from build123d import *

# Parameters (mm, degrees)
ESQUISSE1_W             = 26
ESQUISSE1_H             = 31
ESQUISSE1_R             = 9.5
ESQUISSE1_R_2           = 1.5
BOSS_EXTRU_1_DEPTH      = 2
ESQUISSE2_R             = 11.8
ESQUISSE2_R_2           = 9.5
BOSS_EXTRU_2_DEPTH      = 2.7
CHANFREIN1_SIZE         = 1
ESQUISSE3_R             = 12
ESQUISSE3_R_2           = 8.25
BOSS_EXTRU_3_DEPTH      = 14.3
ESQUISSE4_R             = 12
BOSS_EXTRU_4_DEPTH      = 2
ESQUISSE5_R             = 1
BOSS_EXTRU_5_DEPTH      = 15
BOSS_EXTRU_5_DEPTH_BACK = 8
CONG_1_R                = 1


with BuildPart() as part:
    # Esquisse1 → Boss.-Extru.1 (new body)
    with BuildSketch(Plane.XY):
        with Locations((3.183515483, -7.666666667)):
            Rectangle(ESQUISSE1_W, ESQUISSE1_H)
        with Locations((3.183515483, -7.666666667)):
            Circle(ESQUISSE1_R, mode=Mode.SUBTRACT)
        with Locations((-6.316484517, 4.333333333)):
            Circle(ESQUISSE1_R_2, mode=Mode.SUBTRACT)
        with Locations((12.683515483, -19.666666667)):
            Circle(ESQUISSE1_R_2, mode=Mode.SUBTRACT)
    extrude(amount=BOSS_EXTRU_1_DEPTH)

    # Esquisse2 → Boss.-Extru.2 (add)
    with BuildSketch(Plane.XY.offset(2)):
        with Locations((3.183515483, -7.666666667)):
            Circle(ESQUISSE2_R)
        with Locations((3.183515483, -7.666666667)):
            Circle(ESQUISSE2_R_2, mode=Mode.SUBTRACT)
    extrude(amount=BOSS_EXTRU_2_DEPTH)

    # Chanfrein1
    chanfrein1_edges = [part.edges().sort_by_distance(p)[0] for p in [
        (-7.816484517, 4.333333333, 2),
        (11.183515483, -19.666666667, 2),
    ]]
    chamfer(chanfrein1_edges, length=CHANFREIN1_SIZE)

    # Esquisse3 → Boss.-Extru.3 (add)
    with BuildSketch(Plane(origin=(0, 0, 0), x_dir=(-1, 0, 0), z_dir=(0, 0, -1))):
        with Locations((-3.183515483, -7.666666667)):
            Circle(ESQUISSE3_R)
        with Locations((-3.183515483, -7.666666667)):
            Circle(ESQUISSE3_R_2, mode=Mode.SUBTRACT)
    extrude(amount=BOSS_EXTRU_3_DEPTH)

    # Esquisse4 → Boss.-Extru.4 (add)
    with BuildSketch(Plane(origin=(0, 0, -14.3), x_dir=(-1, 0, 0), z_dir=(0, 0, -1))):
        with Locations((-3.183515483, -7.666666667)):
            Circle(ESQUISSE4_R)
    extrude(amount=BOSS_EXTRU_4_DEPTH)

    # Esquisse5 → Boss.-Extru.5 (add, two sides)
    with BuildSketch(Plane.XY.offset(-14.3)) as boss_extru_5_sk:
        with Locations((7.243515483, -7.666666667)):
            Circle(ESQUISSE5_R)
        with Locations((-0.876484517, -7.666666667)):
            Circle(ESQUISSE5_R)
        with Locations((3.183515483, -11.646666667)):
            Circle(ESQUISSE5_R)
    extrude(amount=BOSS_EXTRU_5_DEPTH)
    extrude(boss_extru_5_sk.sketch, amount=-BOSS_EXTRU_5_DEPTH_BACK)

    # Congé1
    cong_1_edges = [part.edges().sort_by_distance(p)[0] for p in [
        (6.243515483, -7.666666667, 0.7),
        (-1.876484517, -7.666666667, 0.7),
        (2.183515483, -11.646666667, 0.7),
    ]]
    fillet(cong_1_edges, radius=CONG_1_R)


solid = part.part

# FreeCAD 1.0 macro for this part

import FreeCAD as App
import Part
import Sketcher
from FreeCAD import Vector
Q = App.Units.Quantity


def edges_at(feature, points):
    """Names of the edges that pass closest to the given points."""
    edges = feature.Shape.Edges
    near = lambda p: min(range(len(edges)), key=lambda i: edges[i].distToShape(Part.Vertex(*p))[0])
    return sorted({f"Edge{near(p) + 1}" for p in points})

doc = App.newDocument("Part")
body = doc.addObject("PartDesign::Body", "Body")

sketch1 = body.newObject("Sketcher::SketchObject", "Sketch")
sketch1.AttachmentSupport = (doc.getObject("XY_Plane"), [""])
sketch1.MapMode = "FlatFace"
sketch1.addGeometry([
    Part.LineSegment(Vector(-9.8, 7.8, 0), Vector(-9.8, -23.2, 0)),
    Part.LineSegment(Vector(-9.8, -23.2, 0), Vector(16.2, -23.2, 0)),
    Part.LineSegment(Vector(16.2, -23.2, 0), Vector(16.2, 7.8, 0)),
    Part.LineSegment(Vector(16.2, 7.8, 0), Vector(-9.8, 7.8, 0)),
    Part.Circle(Vector(12.7, -19.7, 0), Vector(0, 0, 1), 1.5),
    Part.Circle(Vector(-6.3, 4.3, 0), Vector(0, 0, 1), 1.5),
    Part.Circle(Vector(3.2, -7.7, 0), Vector(0, 0, 1), 9.5),
], False)
sketch1.addConstraint([
    Sketcher.Constraint("Coincident", 0, 2, 1, 1),
    Sketcher.Constraint("Coincident", 1, 2, 2, 1),
    Sketcher.Constraint("Coincident", 2, 2, 3, 1),
    Sketcher.Constraint("Coincident", 3, 2, 0, 1),
    Sketcher.Constraint("Vertical", 0),
    Sketcher.Constraint("Horizontal", 1),
    Sketcher.Constraint("Vertical", 2),
    Sketcher.Constraint("Horizontal", 3),
    Sketcher.Constraint("Equal", 4, 5),
    Sketcher.Constraint("Diameter", 4, Q("3 mm")),
    Sketcher.Constraint("Diameter", 6, Q("19 mm")),
    Sketcher.Constraint("DistanceX", 1, 1, 1, 2, Q("26 mm")),
    Sketcher.Constraint("DistanceY", 0, 2, 0, 1, Q("31 mm")),
    Sketcher.Constraint("DistanceX", 5, 3, 4, 3, Q("19 mm")),
    Sketcher.Constraint("DistanceY", 4, 3, 5, 3, Q("24 mm")),
    Sketcher.Constraint("DistanceY", 4, 3, 6, 3, Q("12 mm")),
    Sketcher.Constraint("DistanceX", 0, 2, 6, 3, Q("13 mm")),
    Sketcher.Constraint("DistanceX", 6, 3, 4, 3, Q("9.5 mm")),
    Sketcher.Constraint("DistanceY", 0, 2, 6, 3, Q("15.5 mm")),
    Sketcher.Constraint("DistanceX", -1, 1, 4, 3, Q("12.683515 mm")),
    Sketcher.Constraint("DistanceY", 4, 3, -1, 1, Q("19.666667 mm")),
])
pad1 = body.newObject("PartDesign::Pad", "Pad")
pad1.Profile = sketch1
pad1.Length = 2

sketch2 = body.newObject("Sketcher::SketchObject", "Sketch001")
sketch2.AttachmentSupport = (doc.getObject("XY_Plane"), [""])
sketch2.MapMode = "FlatFace"
sketch2.AttachmentOffset = App.Placement(Vector(0, 0, 2), App.Rotation())
sketch2.addGeometry([
    Part.Circle(Vector(3, -8, 0), Vector(0, 0, 1), 12),
    Part.Circle(Vector(3, -8, 0), Vector(0, 0, 1), 10),
], False)
sketch2.addConstraint([
    Sketcher.Constraint("Coincident", 1, 3, 0, 3),
    Sketcher.Constraint("Diameter", 1, Q("19 mm")),
    Sketcher.Constraint("Diameter", 0, Q("23.6 mm")),
    Sketcher.Constraint("DistanceX", -1, 1, 0, 3, Q("3.183515 mm")),
    Sketcher.Constraint("DistanceY", 0, 3, -1, 1, Q("7.666667 mm")),
])
pad2 = body.newObject("PartDesign::Pad", "Pad001")
pad2.Profile = sketch2
pad2.Length = 2.7
doc.recompute()

chamfer = body.newObject("PartDesign::Chamfer", "Chamfer")
chamfer.Base = (pad2, edges_at(pad2, [(-7.816, 4.333, 2), (11.184, -19.667, 2)]))
chamfer.Size = 1

sketch3 = body.newObject("Sketcher::SketchObject", "Sketch002")
sketch3.AttachmentSupport = (doc.getObject("XY_Plane"), [""])
sketch3.MapMode = "FlatFace"
sketch3.addGeometry([
    Part.Circle(Vector(3, -8, 0), Vector(0, 0, 1), 12),
    Part.Circle(Vector(3, -8, 0), Vector(0, 0, 1), 8),
], False)
sketch3.addConstraint([
    Sketcher.Constraint("Coincident", 1, 3, 0, 3),
    Sketcher.Constraint("Diameter", 0, Q("24 mm")),
    Sketcher.Constraint("Diameter", 1, Q("16.5 mm")),
    Sketcher.Constraint("DistanceX", -1, 1, 0, 3, Q("3.183515 mm")),
    Sketcher.Constraint("DistanceY", 0, 3, -1, 1, Q("7.666667 mm")),
])
pad3 = body.newObject("PartDesign::Pad", "Pad002")
pad3.Profile = sketch3
pad3.Length = 14.3
pad3.Reversed = True

sketch4 = body.newObject("Sketcher::SketchObject", "Sketch003")
sketch4.AttachmentSupport = (doc.getObject("XY_Plane"), [""])
sketch4.MapMode = "FlatFace"
sketch4.AttachmentOffset = App.Placement(Vector(0, 0, -14.3), App.Rotation())
sketch4.addGeometry(Part.Circle(Vector(3, -8, 0), Vector(0, 0, 1), 12), False)
sketch4.addConstraint([
    Sketcher.Constraint("Diameter", 0, Q("24 mm")),
    Sketcher.Constraint("DistanceX", -1, 1, 0, 3, Q("3.183515 mm")),
    Sketcher.Constraint("DistanceY", 0, 3, -1, 1, Q("7.666667 mm")),
])
pad4 = body.newObject("PartDesign::Pad", "Pad003")
pad4.Profile = sketch4
pad4.Length = 2
pad4.Reversed = True

sketch5 = body.newObject("Sketcher::SketchObject", "Sketch004")
sketch5.AttachmentSupport = (doc.getObject("XY_Plane"), [""])
sketch5.MapMode = "FlatFace"
sketch5.AttachmentOffset = App.Placement(Vector(0, 0, -14.3), App.Rotation())
sketch5.addGeometry([
    Part.Circle(Vector(7.2, -7.7, 0), Vector(0, 0, 1), 1),
    Part.Circle(Vector(-0.9, -7.7, 0), Vector(0, 0, 1), 1),
    Part.Circle(Vector(3.2, -11.6, 0), Vector(0, 0, 1), 1),
], False)
sketch5.addConstraint([
    Sketcher.Constraint("Equal", 0, 1),
    Sketcher.Constraint("Equal", 1, 2),
    Sketcher.Constraint("Horizontal", 0, 3, 1, 3),
    Sketcher.Constraint("Diameter", 0, Q("2 mm")),
    Sketcher.Constraint("DistanceX", 1, 3, 0, 3, Q("8.12 mm")),
    Sketcher.Constraint("DistanceX", 1, 3, 2, 3, Q("4.06 mm")),
    Sketcher.Constraint("DistanceY", 2, 3, 1, 3, Q("3.98 mm")),
    Sketcher.Constraint("DistanceX", -1, 1, 0, 3, Q("7.243515 mm")),
    Sketcher.Constraint("DistanceY", 0, 3, -1, 1, Q("7.666667 mm")),
])
pad5 = body.newObject("PartDesign::Pad", "Pad004")
pad5.Profile = sketch5
pad5.Type = "TwoLengths"
pad5.Length = 15
pad5.Length2 = 8
doc.recompute()

fillet = body.newObject("PartDesign::Fillet", "Fillet")
fillet.Base = (pad5, edges_at(pad5, [(6.244, -7.667, 0.7), (-1.876, -7.667, 0.7), (2.184, -11.647, 0.7)]))
fillet.Radius = 1

doc.recompute()
